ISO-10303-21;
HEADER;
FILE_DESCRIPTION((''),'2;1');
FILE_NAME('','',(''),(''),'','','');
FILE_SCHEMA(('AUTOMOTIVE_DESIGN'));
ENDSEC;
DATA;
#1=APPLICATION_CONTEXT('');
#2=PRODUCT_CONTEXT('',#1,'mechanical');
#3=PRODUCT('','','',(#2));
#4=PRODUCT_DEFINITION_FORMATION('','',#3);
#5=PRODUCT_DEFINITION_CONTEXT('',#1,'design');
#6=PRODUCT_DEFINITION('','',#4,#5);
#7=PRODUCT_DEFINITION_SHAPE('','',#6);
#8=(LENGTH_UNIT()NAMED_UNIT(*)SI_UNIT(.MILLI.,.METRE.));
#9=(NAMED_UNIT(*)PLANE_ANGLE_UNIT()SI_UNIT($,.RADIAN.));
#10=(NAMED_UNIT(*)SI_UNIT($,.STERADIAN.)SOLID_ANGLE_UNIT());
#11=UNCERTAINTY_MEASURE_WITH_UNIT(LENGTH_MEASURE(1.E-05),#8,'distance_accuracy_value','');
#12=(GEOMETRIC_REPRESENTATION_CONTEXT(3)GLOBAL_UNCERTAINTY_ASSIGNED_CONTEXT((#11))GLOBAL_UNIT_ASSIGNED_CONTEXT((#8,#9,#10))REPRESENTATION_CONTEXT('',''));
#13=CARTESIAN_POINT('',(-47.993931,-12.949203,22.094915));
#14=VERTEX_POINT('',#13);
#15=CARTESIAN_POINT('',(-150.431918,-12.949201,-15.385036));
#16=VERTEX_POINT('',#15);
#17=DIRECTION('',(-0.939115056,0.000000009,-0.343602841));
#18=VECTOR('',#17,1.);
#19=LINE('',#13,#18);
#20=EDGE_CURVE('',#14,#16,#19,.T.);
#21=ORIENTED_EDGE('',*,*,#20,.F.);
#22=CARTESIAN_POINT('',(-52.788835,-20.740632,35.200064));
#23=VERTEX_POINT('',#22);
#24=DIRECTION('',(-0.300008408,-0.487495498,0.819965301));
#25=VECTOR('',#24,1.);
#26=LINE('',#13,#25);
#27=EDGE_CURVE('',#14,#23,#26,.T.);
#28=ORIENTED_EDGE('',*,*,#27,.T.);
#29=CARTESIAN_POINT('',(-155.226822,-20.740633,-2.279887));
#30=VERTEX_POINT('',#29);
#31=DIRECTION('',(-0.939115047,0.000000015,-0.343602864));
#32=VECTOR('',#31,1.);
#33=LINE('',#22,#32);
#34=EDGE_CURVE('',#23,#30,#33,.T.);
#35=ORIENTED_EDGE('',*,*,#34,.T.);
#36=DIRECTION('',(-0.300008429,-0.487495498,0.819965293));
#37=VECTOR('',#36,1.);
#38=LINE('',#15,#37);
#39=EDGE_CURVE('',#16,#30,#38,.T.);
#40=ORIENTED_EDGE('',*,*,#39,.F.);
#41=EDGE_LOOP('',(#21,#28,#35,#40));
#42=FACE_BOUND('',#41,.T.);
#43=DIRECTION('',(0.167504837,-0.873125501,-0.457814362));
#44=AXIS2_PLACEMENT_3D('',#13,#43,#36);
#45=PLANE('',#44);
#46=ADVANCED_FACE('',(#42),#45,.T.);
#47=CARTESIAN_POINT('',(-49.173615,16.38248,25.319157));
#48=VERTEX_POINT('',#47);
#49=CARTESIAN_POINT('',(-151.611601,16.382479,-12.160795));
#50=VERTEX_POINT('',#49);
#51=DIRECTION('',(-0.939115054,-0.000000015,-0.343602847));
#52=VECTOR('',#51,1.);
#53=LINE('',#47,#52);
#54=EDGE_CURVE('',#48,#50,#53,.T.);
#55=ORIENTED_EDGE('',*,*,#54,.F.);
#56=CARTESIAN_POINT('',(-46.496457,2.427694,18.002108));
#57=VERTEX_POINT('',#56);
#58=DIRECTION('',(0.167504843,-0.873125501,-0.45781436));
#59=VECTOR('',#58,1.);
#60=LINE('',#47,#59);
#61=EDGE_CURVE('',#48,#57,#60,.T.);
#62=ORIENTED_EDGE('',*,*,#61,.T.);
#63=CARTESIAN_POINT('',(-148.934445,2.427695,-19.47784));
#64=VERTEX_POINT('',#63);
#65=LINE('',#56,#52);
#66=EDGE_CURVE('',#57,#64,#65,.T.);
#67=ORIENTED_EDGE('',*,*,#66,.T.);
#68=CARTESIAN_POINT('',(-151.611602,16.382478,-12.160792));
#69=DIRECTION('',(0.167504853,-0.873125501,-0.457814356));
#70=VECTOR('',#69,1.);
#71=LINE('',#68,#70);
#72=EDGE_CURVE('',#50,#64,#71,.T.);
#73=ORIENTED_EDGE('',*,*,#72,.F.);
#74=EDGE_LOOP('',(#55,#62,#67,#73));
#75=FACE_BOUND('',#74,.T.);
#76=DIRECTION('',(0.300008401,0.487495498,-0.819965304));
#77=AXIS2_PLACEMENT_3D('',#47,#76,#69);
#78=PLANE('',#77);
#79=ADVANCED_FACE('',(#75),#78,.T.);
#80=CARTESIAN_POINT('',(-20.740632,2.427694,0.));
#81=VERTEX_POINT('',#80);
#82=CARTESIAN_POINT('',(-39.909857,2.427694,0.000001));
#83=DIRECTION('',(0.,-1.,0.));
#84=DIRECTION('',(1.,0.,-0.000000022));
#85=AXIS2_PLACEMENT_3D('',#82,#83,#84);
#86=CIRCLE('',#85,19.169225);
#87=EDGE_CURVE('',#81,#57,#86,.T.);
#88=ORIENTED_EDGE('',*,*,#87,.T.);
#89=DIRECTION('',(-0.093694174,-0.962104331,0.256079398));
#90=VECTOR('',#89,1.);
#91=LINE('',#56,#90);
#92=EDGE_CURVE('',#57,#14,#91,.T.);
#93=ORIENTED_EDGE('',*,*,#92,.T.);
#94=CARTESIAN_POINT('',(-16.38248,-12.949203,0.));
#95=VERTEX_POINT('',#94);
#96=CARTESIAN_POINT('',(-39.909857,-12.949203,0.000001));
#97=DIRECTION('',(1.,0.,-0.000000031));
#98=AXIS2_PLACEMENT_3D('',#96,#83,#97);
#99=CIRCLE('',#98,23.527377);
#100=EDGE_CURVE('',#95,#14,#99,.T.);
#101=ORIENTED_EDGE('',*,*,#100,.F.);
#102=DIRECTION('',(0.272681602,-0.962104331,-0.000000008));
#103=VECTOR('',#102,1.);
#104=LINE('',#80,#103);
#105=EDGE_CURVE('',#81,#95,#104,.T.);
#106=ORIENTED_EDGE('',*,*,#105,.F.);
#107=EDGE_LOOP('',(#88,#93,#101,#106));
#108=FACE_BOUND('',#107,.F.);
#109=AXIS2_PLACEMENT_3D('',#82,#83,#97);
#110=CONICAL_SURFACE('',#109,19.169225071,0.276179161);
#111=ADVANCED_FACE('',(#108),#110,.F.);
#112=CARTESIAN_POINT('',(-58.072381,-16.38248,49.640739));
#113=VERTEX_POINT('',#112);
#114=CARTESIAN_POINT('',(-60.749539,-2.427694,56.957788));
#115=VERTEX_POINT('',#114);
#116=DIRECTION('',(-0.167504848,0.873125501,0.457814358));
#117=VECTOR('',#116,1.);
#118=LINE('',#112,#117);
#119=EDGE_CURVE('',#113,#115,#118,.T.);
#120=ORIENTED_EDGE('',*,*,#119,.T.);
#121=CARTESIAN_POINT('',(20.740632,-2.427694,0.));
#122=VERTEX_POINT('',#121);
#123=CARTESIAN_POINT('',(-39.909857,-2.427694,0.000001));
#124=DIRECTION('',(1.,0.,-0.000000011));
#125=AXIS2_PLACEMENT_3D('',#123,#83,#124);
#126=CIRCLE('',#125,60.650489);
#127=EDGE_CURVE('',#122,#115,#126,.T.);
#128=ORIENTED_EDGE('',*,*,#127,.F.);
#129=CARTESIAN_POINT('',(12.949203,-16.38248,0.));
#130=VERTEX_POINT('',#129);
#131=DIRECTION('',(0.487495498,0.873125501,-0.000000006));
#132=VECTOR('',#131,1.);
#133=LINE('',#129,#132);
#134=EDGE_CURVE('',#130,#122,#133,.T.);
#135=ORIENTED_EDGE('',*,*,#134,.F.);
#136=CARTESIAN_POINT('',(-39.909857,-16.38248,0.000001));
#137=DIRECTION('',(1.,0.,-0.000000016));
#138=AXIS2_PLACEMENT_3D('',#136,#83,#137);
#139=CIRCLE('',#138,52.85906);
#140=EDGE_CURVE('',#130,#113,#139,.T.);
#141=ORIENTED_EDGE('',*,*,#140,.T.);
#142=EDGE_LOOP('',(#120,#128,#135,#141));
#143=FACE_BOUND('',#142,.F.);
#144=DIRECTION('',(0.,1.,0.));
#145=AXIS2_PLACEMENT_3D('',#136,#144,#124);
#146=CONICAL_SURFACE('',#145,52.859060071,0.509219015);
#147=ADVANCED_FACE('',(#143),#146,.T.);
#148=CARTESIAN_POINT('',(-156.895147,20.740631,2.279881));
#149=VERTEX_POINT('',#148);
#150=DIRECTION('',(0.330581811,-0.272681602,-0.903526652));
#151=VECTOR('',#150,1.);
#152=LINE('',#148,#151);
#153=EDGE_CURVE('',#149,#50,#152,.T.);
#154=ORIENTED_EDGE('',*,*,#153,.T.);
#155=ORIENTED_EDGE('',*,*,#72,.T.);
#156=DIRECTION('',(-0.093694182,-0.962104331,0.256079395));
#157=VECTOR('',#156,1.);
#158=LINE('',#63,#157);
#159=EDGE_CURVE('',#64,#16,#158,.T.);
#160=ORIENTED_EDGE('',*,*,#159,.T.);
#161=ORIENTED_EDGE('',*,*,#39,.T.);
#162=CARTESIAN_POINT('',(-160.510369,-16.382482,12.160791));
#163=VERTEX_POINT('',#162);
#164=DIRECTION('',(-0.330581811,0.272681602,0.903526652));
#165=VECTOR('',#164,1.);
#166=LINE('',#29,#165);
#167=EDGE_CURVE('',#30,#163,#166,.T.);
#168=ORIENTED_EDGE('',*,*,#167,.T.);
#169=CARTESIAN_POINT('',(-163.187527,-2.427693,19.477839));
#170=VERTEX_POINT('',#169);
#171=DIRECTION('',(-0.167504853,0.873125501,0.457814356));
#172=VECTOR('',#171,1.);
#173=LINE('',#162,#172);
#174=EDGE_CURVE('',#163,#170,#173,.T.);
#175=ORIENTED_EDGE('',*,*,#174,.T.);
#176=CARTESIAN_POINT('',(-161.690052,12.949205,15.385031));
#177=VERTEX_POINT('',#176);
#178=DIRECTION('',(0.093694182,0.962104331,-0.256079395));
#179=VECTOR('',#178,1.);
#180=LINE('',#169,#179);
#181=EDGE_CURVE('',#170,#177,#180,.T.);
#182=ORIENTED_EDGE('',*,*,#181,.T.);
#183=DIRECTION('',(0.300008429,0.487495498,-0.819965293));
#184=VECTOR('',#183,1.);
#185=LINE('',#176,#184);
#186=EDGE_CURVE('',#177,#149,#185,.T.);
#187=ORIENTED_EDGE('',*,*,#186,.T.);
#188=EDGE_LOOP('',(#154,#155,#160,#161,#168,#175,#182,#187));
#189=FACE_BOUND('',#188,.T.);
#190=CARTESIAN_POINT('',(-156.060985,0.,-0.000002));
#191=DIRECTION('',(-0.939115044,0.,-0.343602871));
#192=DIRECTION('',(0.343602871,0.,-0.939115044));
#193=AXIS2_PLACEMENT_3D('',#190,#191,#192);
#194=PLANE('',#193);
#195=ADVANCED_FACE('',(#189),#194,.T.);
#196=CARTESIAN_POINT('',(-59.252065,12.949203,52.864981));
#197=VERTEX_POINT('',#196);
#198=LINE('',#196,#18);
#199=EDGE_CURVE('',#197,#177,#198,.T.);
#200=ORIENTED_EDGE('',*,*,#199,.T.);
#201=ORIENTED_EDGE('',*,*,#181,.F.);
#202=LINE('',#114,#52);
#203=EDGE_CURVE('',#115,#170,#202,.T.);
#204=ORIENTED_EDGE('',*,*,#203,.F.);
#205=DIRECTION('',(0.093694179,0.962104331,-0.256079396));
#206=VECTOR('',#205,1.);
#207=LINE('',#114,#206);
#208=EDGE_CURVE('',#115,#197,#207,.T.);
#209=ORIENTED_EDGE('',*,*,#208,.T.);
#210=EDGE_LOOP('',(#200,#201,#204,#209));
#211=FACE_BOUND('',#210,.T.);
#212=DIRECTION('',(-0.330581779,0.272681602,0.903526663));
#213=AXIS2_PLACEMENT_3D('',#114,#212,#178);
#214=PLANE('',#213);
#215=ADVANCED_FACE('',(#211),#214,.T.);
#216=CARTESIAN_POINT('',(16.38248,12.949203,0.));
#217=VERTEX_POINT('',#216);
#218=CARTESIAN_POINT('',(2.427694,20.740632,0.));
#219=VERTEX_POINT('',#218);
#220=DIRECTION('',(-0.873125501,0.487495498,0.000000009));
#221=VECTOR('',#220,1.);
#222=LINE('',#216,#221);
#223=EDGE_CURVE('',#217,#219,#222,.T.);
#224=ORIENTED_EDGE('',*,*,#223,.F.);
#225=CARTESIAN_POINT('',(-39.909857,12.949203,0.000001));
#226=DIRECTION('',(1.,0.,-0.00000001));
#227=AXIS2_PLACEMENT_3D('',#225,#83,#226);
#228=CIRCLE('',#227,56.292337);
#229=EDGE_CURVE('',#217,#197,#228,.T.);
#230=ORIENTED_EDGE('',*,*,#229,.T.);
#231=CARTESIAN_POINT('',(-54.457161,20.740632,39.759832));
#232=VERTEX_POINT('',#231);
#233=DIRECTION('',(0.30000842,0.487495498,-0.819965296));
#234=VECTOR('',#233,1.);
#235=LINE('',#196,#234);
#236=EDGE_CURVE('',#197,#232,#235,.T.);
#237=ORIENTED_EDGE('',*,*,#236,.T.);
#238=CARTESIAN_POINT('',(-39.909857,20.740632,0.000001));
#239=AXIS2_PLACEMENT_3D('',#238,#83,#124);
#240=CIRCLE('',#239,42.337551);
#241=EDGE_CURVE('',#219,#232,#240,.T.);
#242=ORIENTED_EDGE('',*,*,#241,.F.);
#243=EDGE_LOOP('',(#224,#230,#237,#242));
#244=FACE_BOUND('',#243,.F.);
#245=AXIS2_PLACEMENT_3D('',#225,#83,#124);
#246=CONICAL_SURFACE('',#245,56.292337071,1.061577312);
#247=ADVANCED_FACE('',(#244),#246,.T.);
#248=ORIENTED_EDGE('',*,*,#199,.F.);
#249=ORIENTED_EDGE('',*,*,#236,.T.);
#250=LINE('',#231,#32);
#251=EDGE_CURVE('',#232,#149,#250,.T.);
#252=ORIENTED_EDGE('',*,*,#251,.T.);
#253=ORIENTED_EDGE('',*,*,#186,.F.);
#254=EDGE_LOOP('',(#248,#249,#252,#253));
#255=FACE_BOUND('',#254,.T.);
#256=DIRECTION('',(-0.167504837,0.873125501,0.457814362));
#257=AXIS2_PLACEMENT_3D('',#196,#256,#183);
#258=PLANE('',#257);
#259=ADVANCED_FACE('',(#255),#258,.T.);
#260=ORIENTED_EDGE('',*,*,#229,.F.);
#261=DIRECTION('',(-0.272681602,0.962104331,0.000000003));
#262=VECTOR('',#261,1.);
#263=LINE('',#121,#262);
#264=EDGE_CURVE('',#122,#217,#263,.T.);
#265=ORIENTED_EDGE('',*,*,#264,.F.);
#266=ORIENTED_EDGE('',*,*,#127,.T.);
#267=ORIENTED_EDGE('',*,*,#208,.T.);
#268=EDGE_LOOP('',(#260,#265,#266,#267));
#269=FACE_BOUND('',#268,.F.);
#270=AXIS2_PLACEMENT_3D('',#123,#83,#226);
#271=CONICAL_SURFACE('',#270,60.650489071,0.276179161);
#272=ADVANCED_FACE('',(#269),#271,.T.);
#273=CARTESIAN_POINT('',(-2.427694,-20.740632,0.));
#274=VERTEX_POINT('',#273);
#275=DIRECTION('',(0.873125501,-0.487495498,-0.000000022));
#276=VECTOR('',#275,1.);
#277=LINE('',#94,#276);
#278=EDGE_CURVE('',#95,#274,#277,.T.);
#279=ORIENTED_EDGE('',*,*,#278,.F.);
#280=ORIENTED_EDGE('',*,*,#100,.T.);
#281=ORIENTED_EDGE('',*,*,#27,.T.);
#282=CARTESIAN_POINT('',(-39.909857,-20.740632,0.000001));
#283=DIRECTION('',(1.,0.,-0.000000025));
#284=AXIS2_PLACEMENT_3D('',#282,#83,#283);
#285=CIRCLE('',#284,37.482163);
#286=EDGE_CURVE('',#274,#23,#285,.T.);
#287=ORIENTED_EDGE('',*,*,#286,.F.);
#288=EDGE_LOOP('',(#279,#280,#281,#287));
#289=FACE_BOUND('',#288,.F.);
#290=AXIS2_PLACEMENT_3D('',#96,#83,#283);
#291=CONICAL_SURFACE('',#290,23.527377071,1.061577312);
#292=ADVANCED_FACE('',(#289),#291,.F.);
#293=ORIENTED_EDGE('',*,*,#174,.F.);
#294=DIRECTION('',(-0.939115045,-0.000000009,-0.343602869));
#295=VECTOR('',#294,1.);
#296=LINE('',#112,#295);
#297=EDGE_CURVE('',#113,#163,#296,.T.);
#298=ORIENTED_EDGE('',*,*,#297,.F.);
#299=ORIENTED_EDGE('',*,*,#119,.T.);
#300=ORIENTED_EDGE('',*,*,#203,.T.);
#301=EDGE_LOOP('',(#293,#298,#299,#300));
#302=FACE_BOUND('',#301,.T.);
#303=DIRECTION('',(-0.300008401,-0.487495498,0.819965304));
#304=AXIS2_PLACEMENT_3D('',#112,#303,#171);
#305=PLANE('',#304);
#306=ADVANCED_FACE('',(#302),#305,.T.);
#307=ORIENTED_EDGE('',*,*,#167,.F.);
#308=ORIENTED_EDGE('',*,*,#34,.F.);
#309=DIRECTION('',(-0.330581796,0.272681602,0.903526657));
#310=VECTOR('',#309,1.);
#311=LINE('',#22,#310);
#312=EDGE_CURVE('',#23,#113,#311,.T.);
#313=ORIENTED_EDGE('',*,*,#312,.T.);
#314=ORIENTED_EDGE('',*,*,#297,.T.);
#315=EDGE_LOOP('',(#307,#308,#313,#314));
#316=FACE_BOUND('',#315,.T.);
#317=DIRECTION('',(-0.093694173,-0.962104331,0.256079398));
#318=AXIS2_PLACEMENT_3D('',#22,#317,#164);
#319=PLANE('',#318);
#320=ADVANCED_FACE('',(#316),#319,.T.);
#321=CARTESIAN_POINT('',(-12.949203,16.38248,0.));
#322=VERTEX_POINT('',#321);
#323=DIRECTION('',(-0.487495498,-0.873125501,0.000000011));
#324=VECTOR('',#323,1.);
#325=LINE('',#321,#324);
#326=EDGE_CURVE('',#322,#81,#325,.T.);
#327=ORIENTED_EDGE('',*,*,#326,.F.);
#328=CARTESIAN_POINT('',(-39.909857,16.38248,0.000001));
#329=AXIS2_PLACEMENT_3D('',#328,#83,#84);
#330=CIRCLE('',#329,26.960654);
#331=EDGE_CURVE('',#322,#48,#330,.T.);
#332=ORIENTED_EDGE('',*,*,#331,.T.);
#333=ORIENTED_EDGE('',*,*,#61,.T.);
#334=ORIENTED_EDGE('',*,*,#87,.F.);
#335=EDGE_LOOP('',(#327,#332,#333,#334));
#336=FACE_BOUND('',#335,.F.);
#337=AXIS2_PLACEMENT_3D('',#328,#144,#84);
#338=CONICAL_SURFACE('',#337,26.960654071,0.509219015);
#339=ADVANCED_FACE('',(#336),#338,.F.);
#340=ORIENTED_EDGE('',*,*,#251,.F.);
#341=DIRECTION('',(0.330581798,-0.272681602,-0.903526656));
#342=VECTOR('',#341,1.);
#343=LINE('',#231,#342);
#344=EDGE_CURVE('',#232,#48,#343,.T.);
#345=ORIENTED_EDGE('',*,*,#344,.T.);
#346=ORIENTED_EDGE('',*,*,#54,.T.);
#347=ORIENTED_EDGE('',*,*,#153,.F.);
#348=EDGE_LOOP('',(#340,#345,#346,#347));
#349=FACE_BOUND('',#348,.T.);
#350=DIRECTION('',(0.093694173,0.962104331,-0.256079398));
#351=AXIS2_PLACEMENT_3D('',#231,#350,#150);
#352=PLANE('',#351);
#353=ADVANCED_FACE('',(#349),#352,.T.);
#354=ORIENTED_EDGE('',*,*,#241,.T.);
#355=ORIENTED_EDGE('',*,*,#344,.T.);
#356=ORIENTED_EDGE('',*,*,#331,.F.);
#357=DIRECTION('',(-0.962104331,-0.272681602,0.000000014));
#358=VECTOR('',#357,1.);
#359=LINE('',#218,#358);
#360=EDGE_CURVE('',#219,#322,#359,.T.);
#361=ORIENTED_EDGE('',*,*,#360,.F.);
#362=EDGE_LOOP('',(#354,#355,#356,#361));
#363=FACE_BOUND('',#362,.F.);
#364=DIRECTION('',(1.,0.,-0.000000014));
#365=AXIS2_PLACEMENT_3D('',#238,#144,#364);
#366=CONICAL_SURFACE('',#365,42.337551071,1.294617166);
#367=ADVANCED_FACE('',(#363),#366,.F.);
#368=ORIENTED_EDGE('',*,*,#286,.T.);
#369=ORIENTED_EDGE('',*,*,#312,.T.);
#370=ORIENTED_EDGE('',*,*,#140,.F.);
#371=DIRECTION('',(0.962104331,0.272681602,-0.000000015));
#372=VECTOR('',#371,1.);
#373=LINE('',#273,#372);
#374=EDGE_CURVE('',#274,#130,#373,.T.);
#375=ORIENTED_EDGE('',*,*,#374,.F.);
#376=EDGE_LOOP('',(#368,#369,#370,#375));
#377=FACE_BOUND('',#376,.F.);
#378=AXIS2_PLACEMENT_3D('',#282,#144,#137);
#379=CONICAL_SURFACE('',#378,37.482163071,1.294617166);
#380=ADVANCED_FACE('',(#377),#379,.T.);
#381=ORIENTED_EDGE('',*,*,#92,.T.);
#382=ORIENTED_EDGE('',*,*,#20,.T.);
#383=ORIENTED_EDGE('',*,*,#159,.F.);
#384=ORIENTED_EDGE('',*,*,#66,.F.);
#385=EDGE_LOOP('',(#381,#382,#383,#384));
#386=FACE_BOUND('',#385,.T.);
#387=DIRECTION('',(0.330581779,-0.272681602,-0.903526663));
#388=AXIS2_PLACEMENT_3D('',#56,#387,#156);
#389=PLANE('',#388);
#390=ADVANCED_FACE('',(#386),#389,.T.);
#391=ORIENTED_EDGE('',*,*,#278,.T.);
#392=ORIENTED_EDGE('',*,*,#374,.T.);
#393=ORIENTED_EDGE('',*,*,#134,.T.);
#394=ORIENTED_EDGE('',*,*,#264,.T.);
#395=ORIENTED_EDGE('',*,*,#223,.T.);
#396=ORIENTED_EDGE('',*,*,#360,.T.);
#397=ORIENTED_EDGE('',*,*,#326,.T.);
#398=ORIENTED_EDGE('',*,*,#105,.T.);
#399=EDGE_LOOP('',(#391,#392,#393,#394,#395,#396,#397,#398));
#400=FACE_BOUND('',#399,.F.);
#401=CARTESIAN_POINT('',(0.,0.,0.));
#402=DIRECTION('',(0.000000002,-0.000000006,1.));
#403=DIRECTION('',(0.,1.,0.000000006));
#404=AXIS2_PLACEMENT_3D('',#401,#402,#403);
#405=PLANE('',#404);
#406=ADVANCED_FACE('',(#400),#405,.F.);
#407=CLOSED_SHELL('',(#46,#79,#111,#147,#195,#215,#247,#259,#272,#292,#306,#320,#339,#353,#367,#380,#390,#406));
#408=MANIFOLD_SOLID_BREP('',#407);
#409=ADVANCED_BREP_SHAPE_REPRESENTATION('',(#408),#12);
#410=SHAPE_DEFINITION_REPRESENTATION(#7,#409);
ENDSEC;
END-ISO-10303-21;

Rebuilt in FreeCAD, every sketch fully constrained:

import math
import FreeCAD as App
import Part
import Sketcher


def add_polygon(sketch, points):
    """Adds a closed chain of lines whose ends are joined by coincident constraints."""
    first, n = sketch.GeometryCount, len(points)
    for a, b in zip(points, points[1:] + points[:1]):
        sketch.addGeometry(Part.LineSegment(App.Vector(*a, 0), App.Vector(*b, 0)), False)
    for i in range(n):
        sketch.addConstraint(Sketcher.Constraint("Coincident", first + i, 2, first + (i + 1) % n, 1))

doc = App.newDocument("Part")
body = doc.addObject("PartDesign::Body", "Body")

# Sketch on XY plane
sketch1 = doc.addObject("Sketcher::SketchObject", "Sketch")
body.addObject(sketch1)
sketch1.AttachmentSupport = (doc.XY_Plane, [""])
sketch1.MapMode = "FlatFace"
add_polygon(sketch1, [(-13, 16), (-21, 2), (-16, -13), (-2, -21), (13, -16), (21, -2), (16, 13), (2, 21)])  # lines 0-7
sketch1.addConstraint([
    Sketcher.Constraint("Symmetric", 0, 2, 4, 2, -1, 1),
    Sketcher.Constraint("Symmetric", 1, 2, 5, 2, -1, 1),
    Sketcher.Constraint("Symmetric", 2, 2, 6, 2, -1, 1),
    Sketcher.Constraint("Symmetric", 3, 2, 7, 2, -1, 1),
    Sketcher.Constraint("Perpendicular", 0, 2),
    Sketcher.Constraint("Perpendicular", 1, 3),
    Sketcher.Constraint("Equal", 0, 1),
    Sketcher.Constraint("Equal", 1, 2),
    Sketcher.Constraint("Equal", 2, 3),
    Sketcher.Constraint("DistanceX", 1, 2, -1, 1, 16.38248),
    Sketcher.Constraint("DistanceY", 2, 2, 1, 2, 7.791429),
    Sketcher.Constraint("DistanceX", 0, 2, 2, 2, 18.312938),
])

# Sketch on XZ plane
sketch2 = doc.addObject("Sketcher::SketchObject", "Sketch001")
body.addObject(sketch2)
sketch2.AttachmentSupport = (doc.XZ_Plane, [""])
sketch2.MapMode = "FlatFace"
sketch2.addGeometry([
    Part.ArcOfCircle(Part.Circle(App.Vector(-40, 0, 0), App.Vector(0, 0, 1), 40), math.radians(0), math.radians(110)),
    Part.LineSegment(App.Vector(-54, 37, 0), App.Vector(-156, 0, 0)),
], False)
sketch2.addConstraint([
    Sketcher.Constraint("Tangent", 0, 2, 1, 1),
    Sketcher.Constraint("Coincident", 0, 1, -1, 1),
    Sketcher.Constraint("PointOnObject", 0, 3, -1),
    Sketcher.Constraint("PointOnObject", 1, 2, -1),
    Sketcher.Constraint("Radius", 0, 39.909857),
    Sketcher.Constraint("DistanceX", 0, 2, 0, 3, 13.713141),
])
doc.recompute()

additivepipe = doc.addObject("PartDesign::AdditivePipe", "AdditivePipe")
body.addObject(additivepipe)
additivepipe.Profile = sketch1
additivepipe.Spine = (sketch2, ["Edge1", "Edge2"])

doc.recompute()
